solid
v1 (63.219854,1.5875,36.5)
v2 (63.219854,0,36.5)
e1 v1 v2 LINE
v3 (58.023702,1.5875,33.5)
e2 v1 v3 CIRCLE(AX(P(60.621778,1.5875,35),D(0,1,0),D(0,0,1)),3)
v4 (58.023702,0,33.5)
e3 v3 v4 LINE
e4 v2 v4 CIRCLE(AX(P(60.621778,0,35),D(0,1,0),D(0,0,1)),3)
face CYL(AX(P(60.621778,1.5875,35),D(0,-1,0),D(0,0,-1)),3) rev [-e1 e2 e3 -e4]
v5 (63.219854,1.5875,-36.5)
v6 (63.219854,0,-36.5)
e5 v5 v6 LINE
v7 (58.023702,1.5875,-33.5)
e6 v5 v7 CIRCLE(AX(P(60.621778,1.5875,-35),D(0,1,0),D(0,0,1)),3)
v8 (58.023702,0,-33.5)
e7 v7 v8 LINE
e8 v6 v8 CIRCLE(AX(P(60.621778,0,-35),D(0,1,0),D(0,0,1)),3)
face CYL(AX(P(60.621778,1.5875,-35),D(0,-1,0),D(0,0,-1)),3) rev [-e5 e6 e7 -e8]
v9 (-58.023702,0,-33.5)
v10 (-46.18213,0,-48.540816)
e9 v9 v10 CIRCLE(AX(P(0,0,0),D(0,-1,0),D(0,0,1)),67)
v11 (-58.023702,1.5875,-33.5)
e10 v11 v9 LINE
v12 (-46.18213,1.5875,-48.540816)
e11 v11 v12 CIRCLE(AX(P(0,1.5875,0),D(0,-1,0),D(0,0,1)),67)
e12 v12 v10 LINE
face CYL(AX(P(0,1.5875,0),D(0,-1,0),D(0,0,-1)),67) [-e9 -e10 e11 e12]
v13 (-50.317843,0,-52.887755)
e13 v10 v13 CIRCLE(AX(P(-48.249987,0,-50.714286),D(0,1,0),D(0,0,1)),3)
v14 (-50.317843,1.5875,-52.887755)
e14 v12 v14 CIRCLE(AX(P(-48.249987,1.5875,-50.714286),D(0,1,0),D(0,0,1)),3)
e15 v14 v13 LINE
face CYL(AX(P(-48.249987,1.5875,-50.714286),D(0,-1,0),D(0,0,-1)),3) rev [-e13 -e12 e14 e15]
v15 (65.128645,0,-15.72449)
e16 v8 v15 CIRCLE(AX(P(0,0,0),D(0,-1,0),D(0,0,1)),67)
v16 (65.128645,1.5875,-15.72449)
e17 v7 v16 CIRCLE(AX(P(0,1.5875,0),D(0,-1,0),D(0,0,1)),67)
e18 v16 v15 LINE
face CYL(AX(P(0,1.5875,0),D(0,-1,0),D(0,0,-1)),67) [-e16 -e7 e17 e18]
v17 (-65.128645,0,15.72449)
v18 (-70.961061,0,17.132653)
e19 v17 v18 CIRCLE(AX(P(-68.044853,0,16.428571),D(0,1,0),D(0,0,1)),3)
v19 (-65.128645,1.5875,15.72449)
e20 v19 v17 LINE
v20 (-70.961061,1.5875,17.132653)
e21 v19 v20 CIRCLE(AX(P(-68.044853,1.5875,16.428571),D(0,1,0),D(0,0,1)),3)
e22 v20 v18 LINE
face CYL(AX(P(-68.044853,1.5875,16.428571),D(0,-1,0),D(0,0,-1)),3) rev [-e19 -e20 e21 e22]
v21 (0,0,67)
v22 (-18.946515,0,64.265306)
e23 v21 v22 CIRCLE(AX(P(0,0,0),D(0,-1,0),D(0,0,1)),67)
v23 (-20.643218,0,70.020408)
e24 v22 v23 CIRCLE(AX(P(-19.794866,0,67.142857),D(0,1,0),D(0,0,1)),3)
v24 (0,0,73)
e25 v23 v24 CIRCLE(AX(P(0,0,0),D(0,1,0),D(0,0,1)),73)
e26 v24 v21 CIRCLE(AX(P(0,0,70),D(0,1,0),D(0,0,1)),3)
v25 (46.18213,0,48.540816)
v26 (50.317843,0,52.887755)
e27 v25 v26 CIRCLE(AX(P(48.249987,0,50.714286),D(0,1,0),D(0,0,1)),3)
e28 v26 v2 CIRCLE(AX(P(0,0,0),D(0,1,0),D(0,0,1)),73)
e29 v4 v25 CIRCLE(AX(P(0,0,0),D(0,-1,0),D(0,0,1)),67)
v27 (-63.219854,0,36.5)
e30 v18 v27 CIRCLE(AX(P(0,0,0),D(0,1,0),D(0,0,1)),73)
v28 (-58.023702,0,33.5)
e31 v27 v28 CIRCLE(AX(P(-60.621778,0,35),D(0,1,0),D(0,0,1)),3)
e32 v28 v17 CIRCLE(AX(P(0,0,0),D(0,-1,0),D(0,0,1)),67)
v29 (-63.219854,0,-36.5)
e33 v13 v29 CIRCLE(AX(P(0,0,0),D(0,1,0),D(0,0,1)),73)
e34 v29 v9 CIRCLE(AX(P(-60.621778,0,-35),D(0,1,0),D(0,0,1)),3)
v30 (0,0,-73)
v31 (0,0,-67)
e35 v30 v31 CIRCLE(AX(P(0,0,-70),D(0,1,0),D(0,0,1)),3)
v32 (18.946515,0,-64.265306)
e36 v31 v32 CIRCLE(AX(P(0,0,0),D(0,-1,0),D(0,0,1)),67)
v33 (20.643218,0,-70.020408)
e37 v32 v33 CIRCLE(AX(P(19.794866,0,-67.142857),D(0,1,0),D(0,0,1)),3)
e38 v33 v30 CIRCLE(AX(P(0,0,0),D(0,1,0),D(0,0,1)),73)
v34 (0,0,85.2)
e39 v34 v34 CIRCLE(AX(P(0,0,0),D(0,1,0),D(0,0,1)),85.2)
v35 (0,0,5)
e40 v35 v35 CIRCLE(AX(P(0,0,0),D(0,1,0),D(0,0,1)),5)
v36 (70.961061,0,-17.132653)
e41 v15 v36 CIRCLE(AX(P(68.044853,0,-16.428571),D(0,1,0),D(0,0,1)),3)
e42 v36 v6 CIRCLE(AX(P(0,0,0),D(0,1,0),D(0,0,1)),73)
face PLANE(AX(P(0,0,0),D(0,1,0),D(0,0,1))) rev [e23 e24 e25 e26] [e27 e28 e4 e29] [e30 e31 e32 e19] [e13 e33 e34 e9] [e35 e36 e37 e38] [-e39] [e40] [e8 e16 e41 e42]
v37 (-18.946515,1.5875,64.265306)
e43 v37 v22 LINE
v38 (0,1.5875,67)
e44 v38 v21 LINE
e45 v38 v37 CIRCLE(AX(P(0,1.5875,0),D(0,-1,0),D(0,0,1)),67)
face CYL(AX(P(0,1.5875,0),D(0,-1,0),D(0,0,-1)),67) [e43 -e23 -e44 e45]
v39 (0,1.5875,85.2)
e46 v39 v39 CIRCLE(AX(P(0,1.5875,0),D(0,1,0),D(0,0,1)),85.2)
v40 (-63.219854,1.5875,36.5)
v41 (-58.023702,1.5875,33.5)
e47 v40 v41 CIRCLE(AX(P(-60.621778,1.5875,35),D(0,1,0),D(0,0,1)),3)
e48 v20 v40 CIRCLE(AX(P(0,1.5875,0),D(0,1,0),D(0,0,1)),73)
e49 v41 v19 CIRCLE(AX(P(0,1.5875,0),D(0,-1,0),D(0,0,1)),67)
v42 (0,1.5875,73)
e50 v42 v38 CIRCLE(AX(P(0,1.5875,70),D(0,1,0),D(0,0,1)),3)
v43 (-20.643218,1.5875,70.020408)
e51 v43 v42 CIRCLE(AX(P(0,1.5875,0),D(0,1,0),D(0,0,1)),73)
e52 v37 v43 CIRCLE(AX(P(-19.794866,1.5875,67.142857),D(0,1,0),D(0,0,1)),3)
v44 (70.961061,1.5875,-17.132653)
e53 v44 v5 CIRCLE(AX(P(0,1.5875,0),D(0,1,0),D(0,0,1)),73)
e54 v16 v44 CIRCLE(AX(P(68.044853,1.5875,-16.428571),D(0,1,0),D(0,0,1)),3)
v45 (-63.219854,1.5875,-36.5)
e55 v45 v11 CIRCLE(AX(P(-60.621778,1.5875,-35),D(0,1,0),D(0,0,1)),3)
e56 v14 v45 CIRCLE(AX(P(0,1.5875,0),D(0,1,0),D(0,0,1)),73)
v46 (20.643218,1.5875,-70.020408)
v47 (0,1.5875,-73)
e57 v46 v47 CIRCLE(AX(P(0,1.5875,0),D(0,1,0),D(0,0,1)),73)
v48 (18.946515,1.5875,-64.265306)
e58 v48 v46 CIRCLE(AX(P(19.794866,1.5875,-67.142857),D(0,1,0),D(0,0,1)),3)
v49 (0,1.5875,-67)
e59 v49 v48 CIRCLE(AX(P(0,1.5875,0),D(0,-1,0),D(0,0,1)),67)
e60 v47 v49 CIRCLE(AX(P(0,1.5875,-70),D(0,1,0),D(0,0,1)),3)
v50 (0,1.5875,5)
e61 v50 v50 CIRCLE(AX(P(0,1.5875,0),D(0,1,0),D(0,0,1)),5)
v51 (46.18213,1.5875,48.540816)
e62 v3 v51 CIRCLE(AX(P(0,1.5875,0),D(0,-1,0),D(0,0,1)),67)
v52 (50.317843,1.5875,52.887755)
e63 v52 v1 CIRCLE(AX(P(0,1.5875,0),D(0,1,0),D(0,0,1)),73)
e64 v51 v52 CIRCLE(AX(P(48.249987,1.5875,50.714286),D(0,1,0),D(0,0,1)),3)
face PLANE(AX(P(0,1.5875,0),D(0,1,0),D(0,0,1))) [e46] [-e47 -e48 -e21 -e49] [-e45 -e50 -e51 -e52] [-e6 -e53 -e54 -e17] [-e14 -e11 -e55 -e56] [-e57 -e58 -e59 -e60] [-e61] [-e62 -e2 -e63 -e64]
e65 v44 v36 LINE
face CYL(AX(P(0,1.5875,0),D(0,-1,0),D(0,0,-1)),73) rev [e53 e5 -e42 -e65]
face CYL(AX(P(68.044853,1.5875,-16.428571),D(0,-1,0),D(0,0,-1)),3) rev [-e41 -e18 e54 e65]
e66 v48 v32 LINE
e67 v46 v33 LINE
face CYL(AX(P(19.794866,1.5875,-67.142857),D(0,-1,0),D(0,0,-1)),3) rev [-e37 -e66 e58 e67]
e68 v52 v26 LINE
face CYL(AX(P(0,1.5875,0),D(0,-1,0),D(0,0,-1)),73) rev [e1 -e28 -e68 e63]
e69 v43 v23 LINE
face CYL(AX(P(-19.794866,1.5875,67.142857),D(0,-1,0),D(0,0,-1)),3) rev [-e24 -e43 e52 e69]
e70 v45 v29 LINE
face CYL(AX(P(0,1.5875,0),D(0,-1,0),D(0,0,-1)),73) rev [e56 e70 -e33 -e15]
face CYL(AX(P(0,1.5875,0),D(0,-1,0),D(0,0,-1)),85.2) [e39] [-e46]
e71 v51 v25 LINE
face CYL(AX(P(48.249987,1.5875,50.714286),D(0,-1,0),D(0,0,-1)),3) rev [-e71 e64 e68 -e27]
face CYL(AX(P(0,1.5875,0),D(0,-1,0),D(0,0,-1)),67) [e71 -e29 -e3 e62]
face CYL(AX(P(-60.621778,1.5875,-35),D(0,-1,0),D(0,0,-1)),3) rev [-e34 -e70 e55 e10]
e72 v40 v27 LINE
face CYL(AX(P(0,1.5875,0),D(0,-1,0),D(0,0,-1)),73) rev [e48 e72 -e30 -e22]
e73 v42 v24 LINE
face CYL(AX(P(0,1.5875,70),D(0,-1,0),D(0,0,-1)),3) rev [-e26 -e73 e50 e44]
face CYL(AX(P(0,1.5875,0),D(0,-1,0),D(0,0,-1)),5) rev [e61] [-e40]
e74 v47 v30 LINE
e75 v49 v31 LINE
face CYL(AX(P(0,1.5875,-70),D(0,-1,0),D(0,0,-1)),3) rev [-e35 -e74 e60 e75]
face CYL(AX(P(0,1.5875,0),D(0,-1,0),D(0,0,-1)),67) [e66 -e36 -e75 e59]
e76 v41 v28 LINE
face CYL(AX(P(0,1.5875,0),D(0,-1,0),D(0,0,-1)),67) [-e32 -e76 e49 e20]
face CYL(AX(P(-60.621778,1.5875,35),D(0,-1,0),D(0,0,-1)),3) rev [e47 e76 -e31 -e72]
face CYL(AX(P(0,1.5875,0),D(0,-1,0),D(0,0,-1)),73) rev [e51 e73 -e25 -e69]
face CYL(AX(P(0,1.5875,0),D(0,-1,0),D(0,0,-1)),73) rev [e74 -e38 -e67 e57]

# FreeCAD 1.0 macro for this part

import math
import FreeCAD as App
import Part
import Sketcher
Q = App.Units.Quantity

doc = App.newDocument("Part")
params = doc.addObject("Spreadsheet::Sheet", "Params")
for row, (alias, value) in enumerate([
    ("sketch1_diameter", "10 mm"),
    ("sketch1_radius", "73 mm"),
    ("sketch1_radius2", "3 mm"),
    ("sketch1_diameter2", "170.4 mm"),
    ("pad1_length", "1.5875 mm"),
], start=1):
    params.set(f"A{row}", alias)
    params.set(f"B{row}", "=" + value)
    params.setAlias(f"B{row}", alias)

body = doc.addObject("PartDesign::Body", "Body")

# Sketch on XZ plane
sketch1 = body.newObject("Sketcher::SketchObject", "Sketch")
sketch1.AttachmentSupport = (doc.getObject("XZ_Plane"), [""])
sketch1.MapMode = "FlatFace"
sketch1.addGeometry([
    Part.Circle(App.Vector(0, 0, 0), App.Vector(0, 0, 1), 85.2),  # 0
    Part.ArcOfCircle(Part.Circle(App.Vector(0, 0, 0), App.Vector(0, 0, 1), 73), math.radians(90), math.radians(106.43)),  # 1
    Part.ArcOfCircle(Part.Circle(App.Vector(-19.8, 67.1, 0), App.Vector(0, 0, 1), 3), math.radians(106), math.radians(286)),  # 2
    Part.ArcOfCircle(Part.Circle(App.Vector(0, 0, 0), App.Vector(0, 0, 1), 67), math.radians(90), math.radians(106.43)),  # 3
    Part.ArcOfCircle(Part.Circle(App.Vector(0, 70, 0), App.Vector(0, 0, 1), 3), math.radians(-90), math.radians(90)),  # 4
    Part.ArcOfCircle(Part.Circle(App.Vector(0, 0, 0), App.Vector(0, 0, 1), 73), math.radians(150), math.radians(166.43)),  # 5
    Part.ArcOfCircle(Part.Circle(App.Vector(-68, 16.4, 0), App.Vector(0, 0, 1), 3), math.radians(166), math.radians(346)),  # 6
    Part.ArcOfCircle(Part.Circle(App.Vector(0, 0, 0), App.Vector(0, 0, 1), 67), math.radians(150), math.radians(166.43)),  # 7
    Part.ArcOfCircle(Part.Circle(App.Vector(-60.6, 35, 0), App.Vector(0, 0, 1), 3), math.radians(-30), math.radians(150)),  # 8
    Part.ArcOfCircle(Part.Circle(App.Vector(0, 0, 0), App.Vector(0, 0, 1), 73), math.radians(30), math.radians(46.43)),  # 9
    Part.ArcOfCircle(Part.Circle(App.Vector(48.2, 50.7, 0), App.Vector(0, 0, 1), 3), math.radians(46), math.radians(226)),  # 10
    Part.ArcOfCircle(Part.Circle(App.Vector(0, 0, 0), App.Vector(0, 0, 1), 67), math.radians(30), math.radians(46.43)),  # 11
    Part.ArcOfCircle(Part.Circle(App.Vector(60.6, 35, 0), App.Vector(0, 0, 1), 3), math.radians(-150), math.radians(30)),  # 12
    Part.ArcOfCircle(Part.Circle(App.Vector(0, 0, 0), App.Vector(0, 0, 1), 73), math.radians(-150), math.radians(-133.57)),  # 13
    Part.ArcOfCircle(Part.Circle(App.Vector(-48.2, -50.7, 0), App.Vector(0, 0, 1), 3), math.radians(-134), math.radians(46)),  # 14
    Part.ArcOfCircle(Part.Circle(App.Vector(0, 0, 0), App.Vector(0, 0, 1), 67), math.radians(-150), math.radians(-133.57)),  # 15
    Part.ArcOfCircle(Part.Circle(App.Vector(-60.6, -35, 0), App.Vector(0, 0, 1), 3), math.radians(30), math.radians(210)),  # 16
    Part.Circle(App.Vector(0, 0, 0), App.Vector(0, 0, 1), 5),  # 17
    Part.ArcOfCircle(Part.Circle(App.Vector(0, 0, 0), App.Vector(0, 0, 1), 73), math.radians(-30), math.radians(-13.57)),  # 18
    Part.ArcOfCircle(Part.Circle(App.Vector(68, -16.4, 0), App.Vector(0, 0, 1), 3), math.radians(-14), math.radians(166)),  # 19
    Part.ArcOfCircle(Part.Circle(App.Vector(0, 0, 0), App.Vector(0, 0, 1), 67), math.radians(-30), math.radians(-13.57)),  # 20
    Part.ArcOfCircle(Part.Circle(App.Vector(60.6, -35, 0), App.Vector(0, 0, 1), 3), math.radians(150), math.radians(330)),  # 21
    Part.ArcOfCircle(Part.Circle(App.Vector(0, 0, 0), App.Vector(0, 0, 1), 73), math.radians(-90), math.radians(-73.57)),  # 22
    Part.ArcOfCircle(Part.Circle(App.Vector(19.8, -67.1, 0), App.Vector(0, 0, 1), 3), math.radians(-74), math.radians(106)),  # 23
    Part.ArcOfCircle(Part.Circle(App.Vector(0, 0, 0), App.Vector(0, 0, 1), 67), math.radians(-90), math.radians(-73.57)),  # 24
    Part.ArcOfCircle(Part.Circle(App.Vector(0, -70, 0), App.Vector(0, 0, 1), 3), math.radians(90), math.radians(270)),  # 25
], False)
sketch1.addConstraint([
    Sketcher.Constraint("Tangent", 1, 2, 2, 1),
    Sketcher.Constraint("Tangent", 2, 2, 3, 2),
    Sketcher.Constraint("Tangent", 3, 1, 4, 1),
    Sketcher.Constraint("Tangent", 4, 2, 1, 1),
    Sketcher.Constraint("Tangent", 5, 2, 6, 1),
    Sketcher.Constraint("Tangent", 6, 2, 7, 2),
    Sketcher.Constraint("Tangent", 7, 1, 8, 1),
    Sketcher.Constraint("Tangent", 8, 2, 5, 1),
    Sketcher.Constraint("Tangent", 9, 2, 10, 1),
    Sketcher.Constraint("Tangent", 10, 2, 11, 2),
    Sketcher.Constraint("Tangent", 11, 1, 12, 1),
    Sketcher.Constraint("Tangent", 12, 2, 9, 1),
    Sketcher.Constraint("Tangent", 13, 2, 14, 1),
    Sketcher.Constraint("Tangent", 14, 2, 15, 2),
    Sketcher.Constraint("Tangent", 15, 1, 16, 1),
    Sketcher.Constraint("Tangent", 16, 2, 13, 1),
    Sketcher.Constraint("Tangent", 18, 2, 19, 1),
    Sketcher.Constraint("Tangent", 19, 2, 20, 2),
    Sketcher.Constraint("Tangent", 20, 1, 21, 1),
    Sketcher.Constraint("Tangent", 21, 2, 18, 1),
    Sketcher.Constraint("Tangent", 22, 2, 23, 1),
    Sketcher.Constraint("Tangent", 23, 2, 24, 2),
    Sketcher.Constraint("Tangent", 24, 1, 25, 1),
    Sketcher.Constraint("Tangent", 25, 2, 22, 1),
    Sketcher.Constraint("Coincident", 0, 3, -1, 1),
    Sketcher.Constraint("Coincident", 1, 3, -1, 1),
    Sketcher.Constraint("Coincident", 3, 3, -1, 1),
    Sketcher.Constraint("Coincident", 5, 3, -1, 1),
    Sketcher.Constraint("Coincident", 7, 3, -1, 1),
    Sketcher.Constraint("Coincident", 9, 3, -1, 1),
    Sketcher.Constraint("Coincident", 11, 3, -1, 1),
    Sketcher.Constraint("Coincident", 13, 3, -1, 1),
    Sketcher.Constraint("Coincident", 15, 3, -1, 1),
    Sketcher.Constraint("Coincident", 17, 3, -1, 1),
    Sketcher.Constraint("Coincident", 18, 3, -1, 1),
    Sketcher.Constraint("Coincident", 20, 3, -1, 1),
    Sketcher.Constraint("Coincident", 22, 3, -1, 1),
    Sketcher.Constraint("Coincident", 24, 3, -1, 1),
    Sketcher.Constraint("Equal", 1, 5),
    Sketcher.Constraint("Equal", 4, 6),
    Sketcher.Constraint("Equal", 5, 9),
    Sketcher.Constraint("Equal", 8, 10),
    Sketcher.Constraint("Equal", 9, 13),
    Sketcher.Constraint("Equal", 12, 14),
    Sketcher.Constraint("Equal", 13, 18),
    Sketcher.Constraint("Equal", 16, 19),
    Sketcher.Constraint("Equal", 18, 22),
    Sketcher.Constraint("Equal", 21, 23),
    Sketcher.Constraint("PointOnObject", 4, 3, -2),
    Sketcher.Constraint("PointOnObject", 25, 3, -2),
    Sketcher.Constraint("Horizontal", 8, 3, 12, 3),
    Sketcher.Constraint("Horizontal", 16, 3, 21, 3),
    Sketcher.Constraint("Vertical", 8, 3, 16, 3),
    Sketcher.Constraint("Diameter", 17, Q("10 mm")),
    Sketcher.Constraint("Radius", 1, Q("73 mm")),
    Sketcher.Constraint("Radius", 2, Q("3 mm")),
    Sketcher.Constraint("Diameter", 0, Q("170.4 mm")),
    Sketcher.Constraint("DistanceY", -1, 1, 8, 3, Q("35 mm")),
    Sketcher.Constraint("DistanceX", 6, 3, 8, 2, Q("4.824999 mm")),
    Sketcher.Constraint("DistanceX", 21, 2, 19, 3, Q("4.824999 mm")),
    Sketcher.Constraint("DistanceX", 6, 2, 13, 2, Q("14.810802 mm")),
    Sketcher.Constraint("DistanceY", -1, 1, 1, 2, Q("70.020408 mm")),
    Sketcher.Constraint("DistanceX", -1, 1, 10, 2, Q("46.18213 mm")),
    Sketcher.Constraint("DistanceY", 22, 2, -1, 1, Q("70.020408 mm")),
])
sketch1.setExpression("Constraints[53]", "Params.sketch1_diameter")
sketch1.setExpression("Constraints[54]", "Params.sketch1_radius")
sketch1.setExpression("Constraints[55]", "Params.sketch1_radius2")
sketch1.setExpression("Constraints[56]", "Params.sketch1_diameter2")
pad1 = body.newObject("PartDesign::Pad", "Pad")
pad1.Profile = sketch1
pad1.setExpression("Length", "Params.pad1_length")
pad1.Reversed = True

doc.recompute()
